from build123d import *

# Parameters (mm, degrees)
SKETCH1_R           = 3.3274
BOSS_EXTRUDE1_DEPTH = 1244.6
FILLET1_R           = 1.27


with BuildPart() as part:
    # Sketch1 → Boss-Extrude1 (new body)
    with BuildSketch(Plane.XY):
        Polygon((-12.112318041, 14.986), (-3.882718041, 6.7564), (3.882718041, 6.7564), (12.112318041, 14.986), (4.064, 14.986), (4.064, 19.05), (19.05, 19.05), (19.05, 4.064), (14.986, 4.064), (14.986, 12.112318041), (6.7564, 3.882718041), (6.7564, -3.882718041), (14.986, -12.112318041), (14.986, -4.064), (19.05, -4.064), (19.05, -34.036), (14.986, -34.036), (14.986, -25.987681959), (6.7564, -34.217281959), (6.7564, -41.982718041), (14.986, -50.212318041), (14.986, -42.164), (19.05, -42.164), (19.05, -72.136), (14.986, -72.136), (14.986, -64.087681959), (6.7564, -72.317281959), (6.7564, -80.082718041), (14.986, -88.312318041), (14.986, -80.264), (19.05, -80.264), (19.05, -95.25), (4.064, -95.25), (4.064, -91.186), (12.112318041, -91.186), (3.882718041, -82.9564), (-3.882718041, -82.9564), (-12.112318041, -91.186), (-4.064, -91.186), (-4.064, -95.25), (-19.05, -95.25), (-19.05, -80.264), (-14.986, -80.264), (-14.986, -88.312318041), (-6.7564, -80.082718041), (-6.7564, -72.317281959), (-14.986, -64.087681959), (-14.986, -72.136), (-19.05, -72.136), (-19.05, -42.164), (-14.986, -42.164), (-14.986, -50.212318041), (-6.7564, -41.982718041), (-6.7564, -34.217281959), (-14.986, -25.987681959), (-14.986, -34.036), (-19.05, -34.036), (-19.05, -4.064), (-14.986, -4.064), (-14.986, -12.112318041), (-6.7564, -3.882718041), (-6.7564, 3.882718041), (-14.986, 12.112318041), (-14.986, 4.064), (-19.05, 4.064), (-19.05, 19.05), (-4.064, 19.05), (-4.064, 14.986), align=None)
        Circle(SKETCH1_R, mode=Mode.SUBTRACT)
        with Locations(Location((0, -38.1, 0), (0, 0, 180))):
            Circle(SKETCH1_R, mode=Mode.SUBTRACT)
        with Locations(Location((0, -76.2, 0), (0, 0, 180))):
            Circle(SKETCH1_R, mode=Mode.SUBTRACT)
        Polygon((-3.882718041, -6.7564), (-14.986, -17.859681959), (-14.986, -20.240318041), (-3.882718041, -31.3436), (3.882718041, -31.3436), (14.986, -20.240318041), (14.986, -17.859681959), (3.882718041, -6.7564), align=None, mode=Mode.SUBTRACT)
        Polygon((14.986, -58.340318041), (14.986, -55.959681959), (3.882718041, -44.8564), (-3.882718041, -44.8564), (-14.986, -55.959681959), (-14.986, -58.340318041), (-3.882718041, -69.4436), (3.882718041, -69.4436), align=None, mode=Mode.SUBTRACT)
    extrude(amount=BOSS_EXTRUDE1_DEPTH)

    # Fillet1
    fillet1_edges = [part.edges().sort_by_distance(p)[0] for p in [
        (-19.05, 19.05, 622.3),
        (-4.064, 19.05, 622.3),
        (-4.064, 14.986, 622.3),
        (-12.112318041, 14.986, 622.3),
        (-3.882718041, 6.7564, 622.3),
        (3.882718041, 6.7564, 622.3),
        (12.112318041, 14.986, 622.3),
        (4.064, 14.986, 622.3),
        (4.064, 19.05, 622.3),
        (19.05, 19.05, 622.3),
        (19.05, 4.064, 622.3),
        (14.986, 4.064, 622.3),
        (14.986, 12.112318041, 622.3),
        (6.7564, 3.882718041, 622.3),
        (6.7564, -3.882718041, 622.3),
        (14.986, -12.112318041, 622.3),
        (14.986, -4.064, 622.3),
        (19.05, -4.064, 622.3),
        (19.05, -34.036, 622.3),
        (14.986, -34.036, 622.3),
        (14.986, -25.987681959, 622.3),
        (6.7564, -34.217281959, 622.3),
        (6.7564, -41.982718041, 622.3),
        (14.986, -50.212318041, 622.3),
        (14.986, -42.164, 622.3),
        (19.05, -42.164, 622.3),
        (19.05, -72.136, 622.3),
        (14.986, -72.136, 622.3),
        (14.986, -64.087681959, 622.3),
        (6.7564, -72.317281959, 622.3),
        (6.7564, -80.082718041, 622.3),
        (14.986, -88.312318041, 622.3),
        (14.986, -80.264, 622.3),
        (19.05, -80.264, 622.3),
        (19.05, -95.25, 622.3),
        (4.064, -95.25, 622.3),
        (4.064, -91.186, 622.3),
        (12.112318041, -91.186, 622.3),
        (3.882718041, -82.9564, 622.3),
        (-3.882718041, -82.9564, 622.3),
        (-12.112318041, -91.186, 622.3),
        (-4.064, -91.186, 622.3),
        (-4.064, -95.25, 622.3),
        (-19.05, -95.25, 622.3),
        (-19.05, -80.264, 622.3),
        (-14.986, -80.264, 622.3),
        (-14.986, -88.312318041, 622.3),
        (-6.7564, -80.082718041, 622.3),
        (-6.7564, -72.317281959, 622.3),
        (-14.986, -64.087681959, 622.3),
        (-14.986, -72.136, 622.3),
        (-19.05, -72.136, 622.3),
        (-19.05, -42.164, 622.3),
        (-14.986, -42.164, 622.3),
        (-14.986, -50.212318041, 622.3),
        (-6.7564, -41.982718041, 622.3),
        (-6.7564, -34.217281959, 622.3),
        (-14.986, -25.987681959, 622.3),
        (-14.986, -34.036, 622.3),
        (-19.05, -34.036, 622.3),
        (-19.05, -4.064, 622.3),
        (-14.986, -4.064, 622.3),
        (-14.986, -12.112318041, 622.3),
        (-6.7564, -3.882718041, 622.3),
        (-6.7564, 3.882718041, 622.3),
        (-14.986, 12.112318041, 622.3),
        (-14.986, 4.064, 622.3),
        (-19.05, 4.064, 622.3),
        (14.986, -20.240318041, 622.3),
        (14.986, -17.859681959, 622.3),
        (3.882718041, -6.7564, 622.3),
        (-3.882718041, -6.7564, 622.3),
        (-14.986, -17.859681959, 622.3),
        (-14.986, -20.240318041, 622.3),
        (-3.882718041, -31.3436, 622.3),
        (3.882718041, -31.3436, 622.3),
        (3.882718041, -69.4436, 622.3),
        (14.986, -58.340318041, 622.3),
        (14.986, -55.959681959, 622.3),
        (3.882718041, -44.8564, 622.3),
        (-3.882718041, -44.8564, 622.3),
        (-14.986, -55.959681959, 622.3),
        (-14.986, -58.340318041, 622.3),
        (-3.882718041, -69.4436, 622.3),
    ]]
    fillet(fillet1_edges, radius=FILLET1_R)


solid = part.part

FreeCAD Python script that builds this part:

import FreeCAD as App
import Part
import Sketcher
Q = App.Units.Quantity


def edges_at(feature, points):
    """Names of the edges that pass closest to the given points."""
    edges = feature.Shape.Edges
    near = lambda p: min(range(len(edges)), key=lambda i: edges[i].distToShape(Part.Vertex(*p))[0])
    return sorted({f"Edge{near(p) + 1}" for p in points})

doc = App.newDocument("Part")
params = doc.addObject("Spreadsheet::Sheet", "Params")
for row, (alias, value) in enumerate([
    ("sketch1_diameter", "0.262 in"),
    ("sketch1_width", "0.59 in"),
    ("sketch1_width2", "0.16 in"),
    ("sketch1_height", "1.18 in"),
    ("pad1_length", "49 in"),
    ("fillet_radius", "0.05 in"),
], start=1):
    params.set(f"A{row}", alias)
    params.set(f"B{row}", "=" + value)
    params.setAlias(f"B{row}", alias)

body = doc.addObject("PartDesign::Body", "Body")

# Sketch on XY plane
sketch1 = body.newObject("Sketcher::SketchObject", "Sketch")
sketch1.AttachmentSupport = (doc.getObject("XY_Plane"), [""])
sketch1.MapMode = "FlatFace"
sketch1.addGeometry([
    Part.LineSegment(App.Vector(-3.882718, 6.7564, 0), App.Vector(-12.112318, 14.986, 0)),  # 0
    Part.LineSegment(App.Vector(-12.112318, 14.986, 0), App.Vector(-4.064, 14.986, 0)),  # 1
    Part.LineSegment(App.Vector(-4.064, 14.986, 0), App.Vector(-4.064, 19.05, 0)),  # 2
    Part.LineSegment(App.Vector(-4.064, 19.05, 0), App.Vector(-19.05, 19.05, 0)),  # 3
    Part.LineSegment(App.Vector(-19.05, 19.05, 0), App.Vector(-19.05, 4.064, 0)),  # 4
    Part.LineSegment(App.Vector(-19.05, 4.064, 0), App.Vector(-14.986, 4.064, 0)),  # 5
    Part.LineSegment(App.Vector(-14.986, 4.064, 0), App.Vector(-14.986, 12.112318, 0)),  # 6
    Part.LineSegment(App.Vector(-14.986, 12.112318, 0), App.Vector(-6.7564, 3.882718, 0)),  # 7
    Part.LineSegment(App.Vector(-6.7564, 3.882718, 0), App.Vector(-6.7564, -3.882718, 0)),  # 8
    Part.LineSegment(App.Vector(-6.7564, -3.882718, 0), App.Vector(-14.986, -12.112318, 0)),  # 9
    Part.LineSegment(App.Vector(-14.986, -12.112318, 0), App.Vector(-14.986, -4.064, 0)),  # 10
    Part.LineSegment(App.Vector(-14.986, -4.064, 0), App.Vector(-19.05, -4.064, 0)),  # 11
    Part.LineSegment(App.Vector(-19.05, -4.064, 0), App.Vector(-19.05, -34.036, 0)),  # 12
    Part.LineSegment(App.Vector(-19.05, -34.036, 0), App.Vector(-14.986, -34.036, 0)),  # 13
    Part.LineSegment(App.Vector(-14.986, -34.036, 0), App.Vector(-14.986, -25.987682, 0)),  # 14
    Part.LineSegment(App.Vector(-14.986, -25.987682, 0), App.Vector(-6.7564, -34.217282, 0)),  # 15
    Part.LineSegment(App.Vector(-6.7564, -34.217282, 0), App.Vector(-6.7564, -41.982718, 0)),  # 16
    Part.LineSegment(App.Vector(-6.7564, -41.982718, 0), App.Vector(-14.986, -50.212318, 0)),  # 17
    Part.LineSegment(App.Vector(-14.986, -50.212318, 0), App.Vector(-14.986, -42.164, 0)),  # 18
    Part.LineSegment(App.Vector(-14.986, -42.164, 0), App.Vector(-19.05, -42.164, 0)),  # 19
    Part.LineSegment(App.Vector(-19.05, -42.164, 0), App.Vector(-19.05, -72.136, 0)),  # 20
    Part.LineSegment(App.Vector(-19.05, -72.136, 0), App.Vector(-14.986, -72.136, 0)),  # 21
    Part.LineSegment(App.Vector(-14.986, -72.136, 0), App.Vector(-14.986, -64.087682, 0)),  # 22
    Part.LineSegment(App.Vector(-14.986, -64.087682, 0), App.Vector(-6.7564, -72.317282, 0)),  # 23
    Part.LineSegment(App.Vector(-6.7564, -72.317282, 0), App.Vector(-6.7564, -80.082718, 0)),  # 24
    Part.LineSegment(App.Vector(-6.7564, -80.082718, 0), App.Vector(-14.986, -88.312318, 0)),  # 25
    Part.LineSegment(App.Vector(-14.986, -88.312318, 0), App.Vector(-14.986, -80.264, 0)),  # 26
    Part.LineSegment(App.Vector(-14.986, -80.264, 0), App.Vector(-19.05, -80.264, 0)),  # 27
    Part.LineSegment(App.Vector(-19.05, -80.264, 0), App.Vector(-19.05, -95.25, 0)),  # 28
    Part.LineSegment(App.Vector(-19.05, -95.25, 0), App.Vector(-4.064, -95.25, 0)),  # 29
    Part.LineSegment(App.Vector(-4.064, -95.25, 0), App.Vector(-4.064, -91.186, 0)),  # 30
    Part.LineSegment(App.Vector(-4.064, -91.186, 0), App.Vector(-12.112318, -91.186, 0)),  # 31
    Part.LineSegment(App.Vector(-12.112318, -91.186, 0), App.Vector(-3.882718, -82.9564, 0)),  # 32
    Part.LineSegment(App.Vector(-3.882718, -82.9564, 0), App.Vector(3.882718, -82.9564, 0)),  # 33
    Part.LineSegment(App.Vector(3.882718, -82.9564, 0), App.Vector(12.112318, -91.186, 0)),  # 34
    Part.LineSegment(App.Vector(12.112318, -91.186, 0), App.Vector(4.064, -91.186, 0)),  # 35
    Part.LineSegment(App.Vector(4.064, -91.186, 0), App.Vector(4.064, -95.25, 0)),  # 36
    Part.LineSegment(App.Vector(4.064, -95.25, 0), App.Vector(19.05, -95.25, 0)),  # 37
    Part.LineSegment(App.Vector(19.05, -95.25, 0), App.Vector(19.05, -80.264, 0)),  # 38
    Part.LineSegment(App.Vector(19.05, -80.264, 0), App.Vector(14.986, -80.264, 0)),  # 39
    Part.LineSegment(App.Vector(14.986, -80.264, 0), App.Vector(14.986, -88.312318, 0)),  # 40
    Part.LineSegment(App.Vector(14.986, -88.312318, 0), App.Vector(6.7564, -80.082718, 0)),  # 41
    Part.LineSegment(App.Vector(6.7564, -80.082718, 0), App.Vector(6.7564, -72.317282, 0)),  # 42
    Part.LineSegment(App.Vector(6.7564, -72.317282, 0), App.Vector(14.986, -64.087682, 0)),  # 43
    Part.LineSegment(App.Vector(14.986, -64.087682, 0), App.Vector(14.986, -72.136, 0)),  # 44
    Part.LineSegment(App.Vector(14.986, -72.136, 0), App.Vector(19.05, -72.136, 0)),  # 45
    Part.LineSegment(App.Vector(19.05, -72.136, 0), App.Vector(19.05, -42.164, 0)),  # 46
    Part.LineSegment(App.Vector(19.05, -42.164, 0), App.Vector(14.986, -42.164, 0)),  # 47
    Part.LineSegment(App.Vector(14.986, -42.164, 0), App.Vector(14.986, -50.212318, 0)),  # 48
    Part.LineSegment(App.Vector(14.986, -50.212318, 0), App.Vector(6.7564, -41.982718, 0)),  # 49
    Part.LineSegment(App.Vector(6.7564, -41.982718, 0), App.Vector(6.7564, -34.217282, 0)),  # 50
    Part.LineSegment(App.Vector(6.7564, -34.217282, 0), App.Vector(14.986, -25.987682, 0)),  # 51
    Part.LineSegment(App.Vector(14.986, -25.987682, 0), App.Vector(14.986, -34.036, 0)),  # 52
    Part.LineSegment(App.Vector(14.986, -34.036, 0), App.Vector(19.05, -34.036, 0)),  # 53
    Part.LineSegment(App.Vector(19.05, -34.036, 0), App.Vector(19.05, -4.064, 0)),  # 54
    Part.LineSegment(App.Vector(19.05, -4.064, 0), App.Vector(14.986, -4.064, 0)),  # 55
    Part.LineSegment(App.Vector(14.986, -4.064, 0), App.Vector(14.986, -12.112318, 0)),  # 56
    Part.LineSegment(App.Vector(14.986, -12.112318, 0), App.Vector(6.7564, -3.882718, 0)),  # 57
    Part.LineSegment(App.Vector(6.7564, -3.882718, 0), App.Vector(6.7564, 3.882718, 0)),  # 58
    Part.LineSegment(App.Vector(6.7564, 3.882718, 0), App.Vector(14.986, 12.112318, 0)),  # 59
    Part.LineSegment(App.Vector(14.986, 12.112318, 0), App.Vector(14.986, 4.064, 0)),  # 60
    Part.LineSegment(App.Vector(14.986, 4.064, 0), App.Vector(19.05, 4.064, 0)),  # 61
    Part.LineSegment(App.Vector(19.05, 4.064, 0), App.Vector(19.05, 19.05, 0)),  # 62
    Part.LineSegment(App.Vector(19.05, 19.05, 0), App.Vector(4.064, 19.05, 0)),  # 63
    Part.LineSegment(App.Vector(4.064, 19.05, 0), App.Vector(4.064, 14.986, 0)),  # 64
    Part.LineSegment(App.Vector(4.064, 14.986, 0), App.Vector(12.112318, 14.986, 0)),  # 65
    Part.LineSegment(App.Vector(12.112318, 14.986, 0), App.Vector(3.882718, 6.7564, 0)),  # 66
    Part.LineSegment(App.Vector(3.882718, 6.7564, 0), App.Vector(-3.882718, 6.7564, 0)),  # 67
    Part.Circle(App.Vector(0, -76.2, 0), App.Vector(0, 0, 1), 3.3274),  # 68
    Part.LineSegment(App.Vector(14.986, -58.340318, 0), App.Vector(3.882718, -69.4436, 0)),  # 69
    Part.LineSegment(App.Vector(3.882718, -69.4436, 0), App.Vector(-3.882718, -69.4436, 0)),  # 70
    Part.LineSegment(App.Vector(-3.882718, -69.4436, 0), App.Vector(-14.986, -58.340318, 0)),  # 71
    Part.LineSegment(App.Vector(-14.986, -58.340318, 0), App.Vector(-14.986, -55.959682, 0)),  # 72
    Part.LineSegment(App.Vector(-14.986, -55.959682, 0), App.Vector(-3.882718, -44.8564, 0)),  # 73
    Part.LineSegment(App.Vector(-3.882718, -44.8564, 0), App.Vector(3.882718, -44.8564, 0)),  # 74
    Part.LineSegment(App.Vector(3.882718, -44.8564, 0), App.Vector(14.986, -55.959682, 0)),  # 75
    Part.LineSegment(App.Vector(14.986, -55.959682, 0), App.Vector(14.986, -58.340318, 0)),  # 76
    Part.Circle(App.Vector(0, -38.1, 0), App.Vector(0, 0, 1), 3.3274),  # 77
    Part.LineSegment(App.Vector(-3.882718, -6.7564, 0), App.Vector(3.882718, -6.7564, 0)),  # 78
    Part.LineSegment(App.Vector(3.882718, -6.7564, 0), App.Vector(14.986, -17.859682, 0)),  # 79
    Part.LineSegment(App.Vector(14.986, -17.859682, 0), App.Vector(14.986, -20.240318, 0)),  # 80
    Part.LineSegment(App.Vector(14.986, -20.240318, 0), App.Vector(3.882718, -31.3436, 0)),  # 81
    Part.LineSegment(App.Vector(3.882718, -31.3436, 0), App.Vector(-3.882718, -31.3436, 0)),  # 82
    Part.LineSegment(App.Vector(-3.882718, -31.3436, 0), App.Vector(-14.986, -20.240318, 0)),  # 83
    Part.LineSegment(App.Vector(-14.986, -20.240318, 0), App.Vector(-14.986, -17.859682, 0)),  # 84
    Part.LineSegment(App.Vector(-14.986, -17.859682, 0), App.Vector(-3.882718, -6.7564, 0)),  # 85
    Part.Circle(App.Vector(0, 0, 0), App.Vector(0, 0, 1), 3.3274),  # 86
], False)
sketch1.addConstraint([
    Sketcher.Constraint("Coincident", 0, 2, 1, 1),
    Sketcher.Constraint("Coincident", 1, 2, 2, 1),
    Sketcher.Constraint("Coincident", 2, 2, 3, 1),
    Sketcher.Constraint("Coincident", 3, 2, 4, 1),
    Sketcher.Constraint("Coincident", 4, 2, 5, 1),
    Sketcher.Constraint("Coincident", 5, 2, 6, 1),
    Sketcher.Constraint("Coincident", 6, 2, 7, 1),
    Sketcher.Constraint("Coincident", 7, 2, 8, 1),
    Sketcher.Constraint("Coincident", 8, 2, 9, 1),
    Sketcher.Constraint("Coincident", 9, 2, 10, 1),
    Sketcher.Constraint("Coincident", 10, 2, 11, 1),
    Sketcher.Constraint("Coincident", 11, 2, 12, 1),
    Sketcher.Constraint("Coincident", 12, 2, 13, 1),
    Sketcher.Constraint("Coincident", 13, 2, 14, 1),
    Sketcher.Constraint("Coincident", 14, 2, 15, 1),
    Sketcher.Constraint("Coincident", 15, 2, 16, 1),
    Sketcher.Constraint("Coincident", 16, 2, 17, 1),
    Sketcher.Constraint("Coincident", 17, 2, 18, 1),
    Sketcher.Constraint("Coincident", 18, 2, 19, 1),
    Sketcher.Constraint("Coincident", 19, 2, 20, 1),
    Sketcher.Constraint("Coincident", 20, 2, 21, 1),
    Sketcher.Constraint("Coincident", 21, 2, 22, 1),
    Sketcher.Constraint("Coincident", 22, 2, 23, 1),
    Sketcher.Constraint("Coincident", 23, 2, 24, 1),
    Sketcher.Constraint("Coincident", 24, 2, 25, 1),
    Sketcher.Constraint("Coincident", 25, 2, 26, 1),
    Sketcher.Constraint("Coincident", 26, 2, 27, 1),
    Sketcher.Constraint("Coincident", 27, 2, 28, 1),
    Sketcher.Constraint("Coincident", 28, 2, 29, 1),
    Sketcher.Constraint("Coincident", 29, 2, 30, 1),
    Sketcher.Constraint("Coincident", 30, 2, 31, 1),
    Sketcher.Constraint("Coincident", 31, 2, 32, 1),
    Sketcher.Constraint("Coincident", 32, 2, 33, 1),
    Sketcher.Constraint("Coincident", 33, 2, 34, 1),
    Sketcher.Constraint("Coincident", 34, 2, 35, 1),
    Sketcher.Constraint("Coincident", 35, 2, 36, 1),
    Sketcher.Constraint("Coincident", 36, 2, 37, 1),
    Sketcher.Constraint("Coincident", 37, 2, 38, 1),
    Sketcher.Constraint("Coincident", 38, 2, 39, 1),
    Sketcher.Constraint("Coincident", 39, 2, 40, 1),
    Sketcher.Constraint("Coincident", 40, 2, 41, 1),
    Sketcher.Constraint("Coincident", 41, 2, 42, 1),
    Sketcher.Constraint("Coincident", 42, 2, 43, 1),
    Sketcher.Constraint("Coincident", 43, 2, 44, 1),
    Sketcher.Constraint("Coincident", 44, 2, 45, 1),
    Sketcher.Constraint("Coincident", 45, 2, 46, 1),
    Sketcher.Constraint("Coincident", 46, 2, 47, 1),
    Sketcher.Constraint("Coincident", 47, 2, 48, 1),
    Sketcher.Constraint("Coincident", 48, 2, 49, 1),
    Sketcher.Constraint("Coincident", 49, 2, 50, 1),
    Sketcher.Constraint("Coincident", 50, 2, 51, 1),
    Sketcher.Constraint("Coincident", 51, 2, 52, 1),
    Sketcher.Constraint("Coincident", 52, 2, 53, 1),
    Sketcher.Constraint("Coincident", 53, 2, 54, 1),
    Sketcher.Constraint("Coincident", 54, 2, 55, 1),
    Sketcher.Constraint("Coincident", 55, 2, 56, 1),
    Sketcher.Constraint("Coincident", 56, 2, 57, 1),
    Sketcher.Constraint("Coincident", 57, 2, 58, 1),
    Sketcher.Constraint("Coincident", 58, 2, 59, 1),
    Sketcher.Constraint("Coincident", 59, 2, 60, 1),
    Sketcher.Constraint("Coincident", 60, 2, 61, 1),
    Sketcher.Constraint("Coincident", 61, 2, 62, 1),
    Sketcher.Constraint("Coincident", 62, 2, 63, 1),
    Sketcher.Constraint("Coincident", 63, 2, 64, 1),
    Sketcher.Constraint("Coincident", 64, 2, 65, 1),
    Sketcher.Constraint("Coincident", 65, 2, 66, 1),
    Sketcher.Constraint("Coincident", 66, 2, 67, 1),
    Sketcher.Constraint("Coincident", 67, 2, 0, 1),
    Sketcher.Constraint("Coincident", 69, 2, 70, 1),
    Sketcher.Constraint("Coincident", 70, 2, 71, 1),
    Sketcher.Constraint("Coincident", 71, 2, 72, 1),
    Sketcher.Constraint("Coincident", 72, 2, 73, 1),
    Sketcher.Constraint("Coincident", 73, 2, 74, 1),
    Sketcher.Constraint("Coincident", 74, 2, 75, 1),
    Sketcher.Constraint("Coincident", 75, 2, 76, 1),
    Sketcher.Constraint("Coincident", 76, 2, 69, 1),
    Sketcher.Constraint("Coincident", 78, 2, 79, 1),
    Sketcher.Constraint("Coincident", 79, 2, 80, 1),
    Sketcher.Constraint("Coincident", 80, 2, 81, 1),
    Sketcher.Constraint("Coincident", 81, 2, 82, 1),
    Sketcher.Constraint("Coincident", 82, 2, 83, 1),
    Sketcher.Constraint("Coincident", 83, 2, 84, 1),
    Sketcher.Constraint("Coincident", 84, 2, 85, 1),
    Sketcher.Constraint("Coincident", 85, 2, 78, 1),
    Sketcher.Constraint("Horizontal", 1),
    Sketcher.Constraint("Vertical", 2),
    Sketcher.Constraint("Horizontal", 3),
    Sketcher.Constraint("Vertical", 4),
    Sketcher.Constraint("Horizontal", 5),
    Sketcher.Constraint("Vertical", 6),
    Sketcher.Constraint("Vertical", 8),
    Sketcher.Constraint("Vertical", 10),
    Sketcher.Constraint("Horizontal", 11),
    Sketcher.Constraint("Vertical", 12),
    Sketcher.Constraint("Horizontal", 13),
    Sketcher.Constraint("Vertical", 14),
    Sketcher.Constraint("Vertical", 16),
    Sketcher.Constraint("Vertical", 18),
    Sketcher.Constraint("Horizontal", 19),
    Sketcher.Constraint("Vertical", 20),
    Sketcher.Constraint("Horizontal", 21),
    Sketcher.Constraint("Vertical", 22),
    Sketcher.Constraint("Vertical", 24),
    Sketcher.Constraint("Vertical", 26),
    Sketcher.Constraint("Horizontal", 27),
    Sketcher.Constraint("Vertical", 28),
    Sketcher.Constraint("Horizontal", 29),
    Sketcher.Constraint("Vertical", 30),
    Sketcher.Constraint("Horizontal", 31),
    Sketcher.Constraint("Horizontal", 33),
    Sketcher.Constraint("Horizontal", 35),
    Sketcher.Constraint("Vertical", 36),
    Sketcher.Constraint("Horizontal", 37),
    Sketcher.Constraint("Vertical", 38),
    Sketcher.Constraint("Horizontal", 39),
    Sketcher.Constraint("Vertical", 40),
    Sketcher.Constraint("Vertical", 42),
    Sketcher.Constraint("Vertical", 44),
    Sketcher.Constraint("Horizontal", 45),
    Sketcher.Constraint("Vertical", 46),
    Sketcher.Constraint("Horizontal", 47),
    Sketcher.Constraint("Vertical", 48),
    Sketcher.Constraint("Vertical", 50),
    Sketcher.Constraint("Vertical", 52),
    Sketcher.Constraint("Horizontal", 53),
    Sketcher.Constraint("Vertical", 54),
    Sketcher.Constraint("Horizontal", 55),
    Sketcher.Constraint("Vertical", 56),
    Sketcher.Constraint("Vertical", 58),
    Sketcher.Constraint("Vertical", 60),
    Sketcher.Constraint("Horizontal", 61),
    Sketcher.Constraint("Vertical", 62),
    Sketcher.Constraint("Horizontal", 63),
    Sketcher.Constraint("Vertical", 64),
    Sketcher.Constraint("Horizontal", 65),
    Sketcher.Constraint("Horizontal", 67),
    Sketcher.Constraint("Horizontal", 70),
    Sketcher.Constraint("Vertical", 72),
    Sketcher.Constraint("Horizontal", 74),
    Sketcher.Constraint("Vertical", 76),
    Sketcher.Constraint("Horizontal", 78),
    Sketcher.Constraint("Vertical", 80),
    Sketcher.Constraint("Horizontal", 82),
    Sketcher.Constraint("Vertical", 84),
    Sketcher.Constraint("Coincident", 86, 3, -1, 1),
    Sketcher.Constraint("Equal", 68, 77),
    Sketcher.Constraint("Equal", 77, 86),
    Sketcher.Constraint("Symmetric", 4, 2, 54, 2, -1, 1),
    Sketcher.Constraint("Symmetric", 6, 2, 56, 2, -1, 1),
    Sketcher.Constraint("Symmetric", 7, 2, 57, 2, -1, 1),
    Sketcher.Constraint("Symmetric", 9, 2, 59, 2, -1, 1),
    Sketcher.Constraint("Symmetric", 11, 2, 61, 2, -1, 1),
    Sketcher.Constraint("Symmetric", 67, 2, 78, 2, -1, 1),
    Sketcher.Constraint("Symmetric", 31, 2, 34, 2, -2),
    Sketcher.Constraint("Symmetric", 29, 2, 36, 2, -2),
    Sketcher.Constraint("Symmetric", 27, 2, 38, 2, -2),
    Sketcher.Constraint("Symmetric", 25, 2, 40, 2, -2),
    Sketcher.Constraint("Symmetric", 24, 2, 41, 2, -2),
    Sketcher.Constraint("Symmetric", 22, 2, 43, 2, -2),
    Sketcher.Constraint("Symmetric", 20, 2, 45, 2, -2),
    Sketcher.Constraint("Symmetric", 18, 2, 47, 2, -2),
    Sketcher.Constraint("Symmetric", 16, 2, 49, 2, -2),
    Sketcher.Constraint("Symmetric", 14, 2, 51, 2, -2),
    Sketcher.Constraint("Symmetric", 12, 2, 53, 2, -2),
    Sketcher.Constraint("Symmetric", 10, 2, 55, 2, -2),
    Sketcher.Constraint("Symmetric", 2, 2, 63, 2, -2),
    Sketcher.Constraint("Symmetric", 0, 2, 65, 2, -2),
    Sketcher.Constraint("Symmetric", 72, 2, 75, 2, -2),
    Sketcher.Constraint("Symmetric", 80, 2, 83, 2, -2),
    Sketcher.Constraint("PointOnObject", 68, 3, -2),
    Sketcher.Constraint("PointOnObject", 77, 3, -2),
    Sketcher.Constraint("Parallel", 0, 7),
    Sketcher.Constraint("Perpendicular", 7, 9),
    Sketcher.Constraint("Perpendicular", 9, 15),
    Sketcher.Constraint("Perpendicular", 15, 17),
    Sketcher.Constraint("Perpendicular", 17, 23),
    Sketcher.Constraint("Perpendicular", 23, 25),
    Sketcher.Constraint("Parallel", 25, 32),
    Sketcher.Constraint("Perpendicular", 32, 34),
    Sketcher.Constraint("Parallel", 34, 41),
    Sketcher.Constraint("Perpendicular", 41, 43),
    Sketcher.Constraint("Perpendicular", 43, 49),
    Sketcher.Constraint("Perpendicular", 49, 51),
    Sketcher.Constraint("Perpendicular", 57, 59),
    Sketcher.Constraint("Parallel", 59, 66),
    Sketcher.Constraint("Parallel", 66, 69),
    Sketcher.Constraint("Perpendicular", 69, 71),
    Sketcher.Constraint("Perpendicular", 71, 73),
    Sketcher.Constraint("Perpendicular", 73, 75),
    Sketcher.Constraint("Parallel", 75, 79),
    Sketcher.Constraint("Perpendicular", 79, 81),
    Sketcher.Constraint("Perpendicular", 81, 83),
    Sketcher.Constraint("Perpendicular", 83, 85),
    Sketcher.Constraint("Horizontal", 9, 2, 56, 2),
    Sketcher.Constraint("Horizontal", 71, 2, 76, 2),
    Sketcher.Constraint("Horizontal", 79, 2, 84, 2),
    Sketcher.Constraint("Vertical", 10, 2, 13, 2),
    Sketcher.Constraint("Vertical", 8, 2, 15, 2),
    Sketcher.Constraint("Vertical", 14, 2, 17, 2),
    Sketcher.Constraint("Vertical", 12, 2, 19, 2),
    Sketcher.Constraint("Vertical", 18, 2, 21, 2),
    Sketcher.Constraint("Vertical", 16, 2, 23, 2),
    Sketcher.Constraint("Vertical", 22, 2, 25, 2),
    Sketcher.Constraint("Vertical", 20, 2, 27, 2),
    Sketcher.Constraint("Vertical", 2, 2, 29, 2),
    Sketcher.Constraint("Vertical", 0, 2, 31, 2),
    Sketcher.Constraint("Vertical", 33, 2, 66, 2),
    Sketcher.Constraint("Vertical", 66, 2, 69, 2),
    Sketcher.Constraint("Vertical", 26, 2, 71, 2),
    Sketcher.Constraint("Vertical", 70, 2, 73, 2),
    Sketcher.Constraint("Vertical", 76, 2, 79, 2),
    Sketcher.Constraint("Vertical", 78, 2, 81, 2),
    Sketcher.Constraint("Equal", 61, 2),
    Sketcher.Constraint("Equal", 63, 4),
    Sketcher.Constraint("Equal", 65, 6),
    Sketcher.Constraint("Equal", 82, 8),
    Sketcher.Constraint("Equal", 10, 14),
    Sketcher.Constraint("Equal", 8, 16),
    Sketcher.Constraint("Equal", 14, 18),
    Sketcher.Constraint("Equal", 12, 20),
    Sketcher.Constraint("Equal", 18, 22),
    Sketcher.Constraint("Equal", 16, 24),
    Sketcher.Constraint("Equal", 22, 26),
    Sketcher.Constraint("Equal", 4, 28),
    Sketcher.Constraint("Equal", 2, 30),
    Sketcher.Constraint("Equal", 76, 80),
    Sketcher.Constraint("Equal", 0, 7),
    Sketcher.Constraint("Diameter", 68, Q("0.262 in")),
    Sketcher.Constraint("DistanceY", 68, 3, -1, 1, Q("3 in")),
    Sketcher.Constraint("DistanceX", 3, 2, 3, 1, Q("0.59 in")),
    Sketcher.Constraint("DistanceX", 5, 1, 5, 2, Q("0.16 in")),
    Sketcher.Constraint("DistanceY", 12, 2, 12, 1, Q("1.18 in")),
    Sketcher.Constraint("DistanceY", 77, 3, -1, 1, Q("1.5 in")),
    Sketcher.Constraint("DistanceY", -1, 1, 0, 2, Q("0.59 in")),
    Sketcher.Constraint("DistanceX", 7, 2, -1, 1, Q("0.266 in")),
    Sketcher.Constraint("DistanceY", 69, 2, -1, 1, Q("2.734 in")),
    Sketcher.Constraint("DistanceY", 73, 2, -1, 1, Q("1.766 in")),
    Sketcher.Constraint("DistanceX", 1, 1, 1, 2, 8.048318),
])
sketch1.setExpression("Constraints[227]", "Params.sketch1_diameter")
sketch1.setExpression("Constraints[229]", "Params.sketch1_width")
sketch1.setExpression("Constraints[230]", "Params.sketch1_width2")
sketch1.setExpression("Constraints[231]", "Params.sketch1_height")
pad1 = body.newObject("PartDesign::Pad", "Pad")
pad1.Profile = sketch1
pad1.setExpression("Length", "Params.pad1_length")
doc.recompute()

fillet = body.newObject("PartDesign::Fillet", "Fillet")
fillet.Base = (pad1, edges_at(pad1, [
    (-19.05, 19.05, 622.3),
    (-4.064, 19.05, 622.3),
    (-4.064, 14.986, 622.3),
    (-12.112, 14.986, 622.3),
    (-3.883, 6.756, 622.3),
    (3.883, 6.756, 622.3),
    (12.112, 14.986, 622.3),
    (4.064, 14.986, 622.3),
    (4.064, 19.05, 622.3),
    (19.05, 19.05, 622.3),
    (19.05, 4.064, 622.3),
    (14.986, 4.064, 622.3),
    (14.986, 12.112, 622.3),
    (6.756, 3.883, 622.3),
    (6.756, -3.883, 622.3),
    (14.986, -12.112, 622.3),
    (14.986, -4.064, 622.3),
    (19.05, -4.064, 622.3),
    (19.05, -34.036, 622.3),
    (14.986, -34.036, 622.3),
    (14.986, -25.988, 622.3),
    (6.756, -34.217, 622.3),
    (6.756, -41.983, 622.3),
    (14.986, -50.212, 622.3),
    (14.986, -42.164, 622.3),
    (19.05, -42.164, 622.3),
    (19.05, -72.136, 622.3),
    (14.986, -72.136, 622.3),
    (14.986, -64.088, 622.3),
    (6.756, -72.317, 622.3),
    (6.756, -80.083, 622.3),
    (14.986, -88.312, 622.3),
    (14.986, -80.264, 622.3),
    (19.05, -80.264, 622.3),
    (19.05, -95.25, 622.3),
    (4.064, -95.25, 622.3),
    (4.064, -91.186, 622.3),
    (12.112, -91.186, 622.3),
    (3.883, -82.956, 622.3),
    (-3.883, -82.956, 622.3),
    (-12.112, -91.186, 622.3),
    (-4.064, -91.186, 622.3),
    (-4.064, -95.25, 622.3),
    (-19.05, -95.25, 622.3),
    (-19.05, -80.264, 622.3),
    (-14.986, -80.264, 622.3),
    (-14.986, -88.312, 622.3),
    (-6.756, -80.083, 622.3),
    (-6.756, -72.317, 622.3),
    (-14.986, -64.088, 622.3),
    (-14.986, -72.136, 622.3),
    (-19.05, -72.136, 622.3),
    (-19.05, -42.164, 622.3),
    (-14.986, -42.164, 622.3),
    (-14.986, -50.212, 622.3),
    (-6.756, -41.983, 622.3),
    (-6.756, -34.217, 622.3),
    (-14.986, -25.988, 622.3),
    (-14.986, -34.036, 622.3),
    (-19.05, -34.036, 622.3),
    (-19.05, -4.064, 622.3),
    (-14.986, -4.064, 622.3),
    (-14.986, -12.112, 622.3),
    (-6.756, -3.883, 622.3),
    (-6.756, 3.883, 622.3),
    (-14.986, 12.112, 622.3),
    (-14.986, 4.064, 622.3),
    (-19.05, 4.064, 622.3),
    (14.986, -20.24, 622.3),
    (14.986, -17.86, 622.3),
    (3.883, -6.756, 622.3),
    (-3.883, -6.756, 622.3),
    (-14.986, -17.86, 622.3),
    (-14.986, -20.24, 622.3),
    (-3.883, -31.344, 622.3),
    (3.883, -31.344, 622.3),
    (3.883, -69.444, 622.3),
    (14.986, -58.34, 622.3),
    (14.986, -55.96, 622.3),
    (3.883, -44.856, 622.3),
    (-3.883, -44.856, 622.3),
    (-14.986, -55.96, 622.3),
    (-14.986, -58.34, 622.3),
    (-3.883, -69.444, 622.3),
]))
fillet.setExpression("Radius", "Params.fillet_radius")

doc.recompute()
